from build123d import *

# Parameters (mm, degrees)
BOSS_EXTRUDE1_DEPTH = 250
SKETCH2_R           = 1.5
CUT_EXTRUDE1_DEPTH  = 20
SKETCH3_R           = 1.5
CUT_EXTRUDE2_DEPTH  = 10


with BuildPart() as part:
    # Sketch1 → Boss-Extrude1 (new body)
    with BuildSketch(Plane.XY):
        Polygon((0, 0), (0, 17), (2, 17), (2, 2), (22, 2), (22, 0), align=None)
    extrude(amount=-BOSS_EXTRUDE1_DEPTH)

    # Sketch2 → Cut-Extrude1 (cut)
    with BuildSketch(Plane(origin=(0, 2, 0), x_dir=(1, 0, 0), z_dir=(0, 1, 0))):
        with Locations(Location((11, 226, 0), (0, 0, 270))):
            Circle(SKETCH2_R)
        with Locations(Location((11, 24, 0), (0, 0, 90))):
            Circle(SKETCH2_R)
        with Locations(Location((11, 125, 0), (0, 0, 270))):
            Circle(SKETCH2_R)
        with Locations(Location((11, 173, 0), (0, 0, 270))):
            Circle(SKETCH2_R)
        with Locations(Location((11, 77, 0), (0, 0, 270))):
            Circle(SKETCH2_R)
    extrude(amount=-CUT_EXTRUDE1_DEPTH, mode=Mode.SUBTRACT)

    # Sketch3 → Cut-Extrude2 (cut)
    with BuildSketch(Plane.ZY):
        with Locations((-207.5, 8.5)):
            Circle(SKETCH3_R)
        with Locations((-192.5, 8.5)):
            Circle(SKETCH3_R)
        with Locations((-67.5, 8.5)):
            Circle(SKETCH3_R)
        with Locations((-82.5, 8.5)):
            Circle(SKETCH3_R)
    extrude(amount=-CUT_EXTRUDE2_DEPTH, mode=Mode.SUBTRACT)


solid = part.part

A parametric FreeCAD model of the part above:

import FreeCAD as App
import Part
import Sketcher

V = App.Vector

doc = App.newDocument("Part")
body = doc.addObject("PartDesign::Body", "Body")

# Sketch on XY plane
sketch1 = body.newObject("Sketcher::SketchObject", "Sketch")
sketch1.AttachmentSupport = (doc.getObject("XY_Plane"), [""])
sketch1.MapMode = "FlatFace"
sketch1.addGeometry([
    Part.LineSegment(V(0, 17, 0), V(0, 0, 0)),  # 0
    Part.LineSegment(V(0, 0, 0), V(22, 0, 0)),  # 1
    Part.LineSegment(V(22, 0, 0), V(22, 2, 0)),  # 2
    Part.LineSegment(V(22, 2, 0), V(2, 2, 0)),  # 3
    Part.LineSegment(V(2, 2, 0), V(2, 17, 0)),  # 4
    Part.LineSegment(V(2, 17, 0), V(0, 17, 0)),  # 5
], False)
sketch1.addConstraint([
    Sketcher.Constraint("Coincident", 0, 2, 1, 1),
    Sketcher.Constraint("Coincident", 1, 2, 2, 1),
    Sketcher.Constraint("Coincident", 2, 2, 3, 1),
    Sketcher.Constraint("Coincident", 3, 2, 4, 1),
    Sketcher.Constraint("Coincident", 4, 2, 5, 1),
    Sketcher.Constraint("Coincident", 5, 2, 0, 1),
    Sketcher.Constraint("Vertical", 0),
    Sketcher.Constraint("Horizontal", 1),
    Sketcher.Constraint("Vertical", 2),
    Sketcher.Constraint("Horizontal", 3),
    Sketcher.Constraint("Vertical", 4),
    Sketcher.Constraint("Horizontal", 5),
    Sketcher.Constraint("Coincident", 0, 2, -1, 1),
    Sketcher.Constraint("Equal", 5, 2),
    Sketcher.Constraint("DistanceX", 1, 1, 1, 2, 22.0),
    Sketcher.Constraint("DistanceX", 3, 2, 3, 1, 20.0),
    Sketcher.Constraint("DistanceY", 0, 2, 0, 1, 17.0),
])
pad1 = body.newObject("PartDesign::Pad", "Pad")
pad1.Profile = sketch1
pad1.Length = 250
pad1.Reversed = True

# Sketch on XZ plane
sketch2 = body.newObject("Sketcher::SketchObject", "Sketch001")
sketch2.AttachmentSupport = (doc.getObject("XZ_Plane"), [""])
sketch2.MapMode = "FlatFace"
sketch2.AttachmentOffset = App.Placement(V(0, 0, -2), App.Rotation())
sketch2.addGeometry([
    Part.Circle(V(11, -226, 0), V(0, 0, 1), 1.5),  # 0
    Part.Circle(V(11, -24, 0), V(0, 0, 1), 1.5),  # 1
    Part.Circle(V(11, -125, 0), V(0, 0, 1), 1.5),  # 2
    Part.Circle(V(11, -173, 0), V(0, 0, 1), 1.5),  # 3
    Part.Circle(V(11, -77, 0), V(0, 0, 1), 1.5),  # 4
], False)
sketch2.addConstraint([
    Sketcher.Constraint("Equal", 0, 1),
    Sketcher.Constraint("Equal", 1, 2),
    Sketcher.Constraint("Equal", 2, 3),
    Sketcher.Constraint("Equal", 3, 4),
    Sketcher.Constraint("Vertical", 0, 3, 1, 3),
    Sketcher.Constraint("Vertical", 1, 3, 2, 3),
    Sketcher.Constraint("Vertical", 2, 3, 3, 3),
    Sketcher.Constraint("Vertical", 3, 3, 4, 3),
    Sketcher.Constraint("Diameter", 0, 3.0),
    Sketcher.Constraint("DistanceX", -1, 1, 0, 3, 11.0),
    Sketcher.Constraint("DistanceY", 0, 3, -1, 1, 226.0),
    Sketcher.Constraint("DistanceY", 1, 3, -1, 1, 24.0),
    Sketcher.Constraint("DistanceY", 2, 3, -1, 1, 125.0),
    Sketcher.Constraint("DistanceY", 3, 3, -1, 1, 173.0),
    Sketcher.Constraint("DistanceY", 4, 3, -1, 1, 77.0),
])
pocket1 = body.newObject("PartDesign::Pocket", "Pocket")
pocket1.Profile = sketch2
pocket1.Length = 20
pocket1.Reversed = True

# Sketch on YZ plane
sketch3 = body.newObject("Sketcher::SketchObject", "Sketch002")
sketch3.AttachmentSupport = (doc.getObject("YZ_Plane"), [""])
sketch3.MapMode = "FlatFace"
sketch3.addGeometry([
    Part.Circle(V(8.5, -207.5, 0), V(0, 0, 1), 1.5),
    Part.Circle(V(8.5, -192.5, 0), V(0, 0, 1), 1.5),
    Part.Circle(V(8.5, -67.5, 0), V(0, 0, 1), 1.5),
    Part.Circle(V(8.5, -82.5, 0), V(0, 0, 1), 1.5),
], False)
sketch3.addConstraint([
    Sketcher.Constraint("Equal", 0, 1),
    Sketcher.Constraint("Equal", 1, 2),
    Sketcher.Constraint("Equal", 2, 3),
    Sketcher.Constraint("Vertical", 0, 3, 1, 3),
    Sketcher.Constraint("Vertical", 1, 3, 2, 3),
    Sketcher.Constraint("Vertical", 2, 3, 3, 3),
    Sketcher.Constraint("Diameter", 0, 3.0),
    Sketcher.Constraint("DistanceY", 0, 3, 1, 3, 15.0),
    Sketcher.Constraint("DistanceY", 1, 3, 2, 3, 125.0),
    Sketcher.Constraint("DistanceY", 3, 3, 2, 3, 15.0),
    Sketcher.Constraint("DistanceX", -1, 1, 0, 3, 8.5),
    Sketcher.Constraint("DistanceY", 0, 3, -1, 1, 207.5),
])
pocket2 = body.newObject("PartDesign::Pocket", "Pocket001")
pocket2.Profile = sketch3
pocket2.Length = 10
pocket2.Reversed = True

doc.recompute()
